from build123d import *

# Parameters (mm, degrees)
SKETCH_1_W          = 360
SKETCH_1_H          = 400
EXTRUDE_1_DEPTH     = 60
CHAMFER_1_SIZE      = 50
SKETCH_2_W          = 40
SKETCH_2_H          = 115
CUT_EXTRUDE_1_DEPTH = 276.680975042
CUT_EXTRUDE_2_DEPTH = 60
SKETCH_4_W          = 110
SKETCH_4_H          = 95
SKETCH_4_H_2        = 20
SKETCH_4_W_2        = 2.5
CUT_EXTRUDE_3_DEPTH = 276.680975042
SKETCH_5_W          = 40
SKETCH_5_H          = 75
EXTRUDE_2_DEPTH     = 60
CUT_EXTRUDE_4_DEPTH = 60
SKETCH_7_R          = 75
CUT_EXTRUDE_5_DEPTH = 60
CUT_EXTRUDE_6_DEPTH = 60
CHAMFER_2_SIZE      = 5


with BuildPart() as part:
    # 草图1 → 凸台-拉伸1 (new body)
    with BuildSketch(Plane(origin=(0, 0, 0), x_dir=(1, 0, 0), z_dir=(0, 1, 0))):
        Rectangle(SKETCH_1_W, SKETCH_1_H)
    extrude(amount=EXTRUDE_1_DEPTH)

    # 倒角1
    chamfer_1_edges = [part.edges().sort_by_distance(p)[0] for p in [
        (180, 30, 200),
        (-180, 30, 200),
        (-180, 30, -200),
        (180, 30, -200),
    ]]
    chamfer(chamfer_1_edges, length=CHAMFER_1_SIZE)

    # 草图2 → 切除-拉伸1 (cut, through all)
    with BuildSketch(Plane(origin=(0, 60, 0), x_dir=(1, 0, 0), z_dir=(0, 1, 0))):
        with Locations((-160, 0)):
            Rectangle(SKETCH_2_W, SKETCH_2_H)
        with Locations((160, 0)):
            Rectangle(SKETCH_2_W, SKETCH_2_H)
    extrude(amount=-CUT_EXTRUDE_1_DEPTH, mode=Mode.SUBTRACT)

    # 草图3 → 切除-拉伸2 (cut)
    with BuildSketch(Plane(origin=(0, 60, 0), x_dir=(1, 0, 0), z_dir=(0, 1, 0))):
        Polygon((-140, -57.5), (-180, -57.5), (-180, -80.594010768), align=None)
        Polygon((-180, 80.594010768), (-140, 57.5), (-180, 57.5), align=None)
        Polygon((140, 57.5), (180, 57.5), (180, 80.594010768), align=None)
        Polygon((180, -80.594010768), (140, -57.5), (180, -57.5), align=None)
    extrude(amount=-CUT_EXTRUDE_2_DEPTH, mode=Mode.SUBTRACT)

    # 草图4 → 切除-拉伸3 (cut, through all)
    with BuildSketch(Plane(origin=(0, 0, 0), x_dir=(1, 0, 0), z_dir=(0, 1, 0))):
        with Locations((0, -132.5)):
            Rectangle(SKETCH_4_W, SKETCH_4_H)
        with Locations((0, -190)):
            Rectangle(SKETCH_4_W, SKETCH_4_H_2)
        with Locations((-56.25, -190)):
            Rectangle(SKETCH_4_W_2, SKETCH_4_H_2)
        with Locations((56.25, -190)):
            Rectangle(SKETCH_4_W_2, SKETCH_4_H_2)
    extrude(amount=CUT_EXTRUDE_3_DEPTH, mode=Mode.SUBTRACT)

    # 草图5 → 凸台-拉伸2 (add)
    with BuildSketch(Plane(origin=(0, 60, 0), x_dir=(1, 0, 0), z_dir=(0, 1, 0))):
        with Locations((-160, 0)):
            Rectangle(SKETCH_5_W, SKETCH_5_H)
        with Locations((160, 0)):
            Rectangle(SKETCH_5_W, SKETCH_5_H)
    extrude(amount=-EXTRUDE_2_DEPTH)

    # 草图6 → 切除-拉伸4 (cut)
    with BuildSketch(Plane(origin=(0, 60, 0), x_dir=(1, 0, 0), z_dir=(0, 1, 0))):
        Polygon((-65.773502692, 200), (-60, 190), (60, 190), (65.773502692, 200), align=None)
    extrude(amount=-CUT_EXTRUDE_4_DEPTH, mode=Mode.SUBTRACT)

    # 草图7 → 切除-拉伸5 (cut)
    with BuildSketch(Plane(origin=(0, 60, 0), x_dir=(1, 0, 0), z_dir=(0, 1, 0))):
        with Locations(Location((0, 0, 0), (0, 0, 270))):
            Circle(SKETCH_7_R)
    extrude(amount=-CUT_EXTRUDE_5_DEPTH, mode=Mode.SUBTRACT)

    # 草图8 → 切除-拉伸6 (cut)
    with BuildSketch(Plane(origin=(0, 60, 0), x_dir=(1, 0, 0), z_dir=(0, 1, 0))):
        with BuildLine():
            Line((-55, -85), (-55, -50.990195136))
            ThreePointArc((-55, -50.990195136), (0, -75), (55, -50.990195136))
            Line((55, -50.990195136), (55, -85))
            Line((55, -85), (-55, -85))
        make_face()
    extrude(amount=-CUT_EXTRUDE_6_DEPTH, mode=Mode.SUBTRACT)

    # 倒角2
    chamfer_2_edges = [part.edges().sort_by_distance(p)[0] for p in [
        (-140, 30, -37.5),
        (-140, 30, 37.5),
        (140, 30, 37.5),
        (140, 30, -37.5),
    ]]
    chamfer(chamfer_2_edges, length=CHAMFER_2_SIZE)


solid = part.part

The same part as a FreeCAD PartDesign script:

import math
import FreeCAD as App
import Part
import Sketcher
from FreeCAD import Vector
Q = App.Units.Quantity


def edges_at(feature, points):
    """Names of the edges that pass closest to the given points."""
    edges = feature.Shape.Edges
    near = lambda p: min(range(len(edges)), key=lambda i: edges[i].distToShape(Part.Vertex(*p))[0])
    return sorted({f"Edge{near(p) + 1}" for p in points})

doc = App.newDocument("Part")
params = doc.addObject("Spreadsheet::Sheet", "Params")
for row, (alias, value) in enumerate([
    ("sketch1_width", "360 mm"),
    ("sketch1_height", "400 mm"),
    ("pad1_length", "60 mm"),
    ("chamfer_size", "50 mm"),
    ("sketch2_width", "40 mm"),
    ("sketch2_height", "115 mm"),
    ("sketch3_width", "40 mm"),
    ("pocket2_length", "60 mm"),
    ("sketch4_width", "115 mm"),
    ("sketch4_width2", "110 mm"),
    ("sketch4_height", "95 mm"),
    ("sketch4_height2", "20 mm"),
    ("sketch5_width", "40 mm"),
    ("sketch5_height", "75 mm"),
    ("pad2_length", "60 mm"),
    ("sketch6_width", "120 mm"),
    ("pocket4_length", "60 mm"),
    ("sketch7_diameter", "150 mm"),
    ("pocket5_length", "60 mm"),
    ("sketch8_radius", "75 mm"),
    ("sketch8_width", "110 mm"),
    ("pocket6_length", "60 mm"),
    ("chamfer2_size", "5 mm"),
], start=1):
    params.set(f"A{row}", alias)
    params.set(f"B{row}", "=" + value)
    params.setAlias(f"B{row}", alias)

body = doc.addObject("PartDesign::Body", "Body")

# Sketch on XZ plane
sketch1 = body.newObject("Sketcher::SketchObject", "Sketch")
sketch1.AttachmentSupport = (doc.getObject("XZ_Plane"), [""])
sketch1.MapMode = "FlatFace"
sketch1.addGeometry(Part.LineSegment(Vector(-180, -200, 0), Vector(-180, 200, 0)), False)
sketch1.addGeometry(Part.LineSegment(Vector(-180, 200, 0), Vector(180, 200, 0)), False)
sketch1.addGeometry(Part.LineSegment(Vector(180, 200, 0), Vector(180, -200, 0)), False)
sketch1.addGeometry(Part.LineSegment(Vector(180, -200, 0), Vector(-180, -200, 0)), False)
sketch1.addConstraint(Sketcher.Constraint("Coincident", 0, 2, 1, 1))
sketch1.addConstraint(Sketcher.Constraint("Coincident", 1, 2, 2, 1))
sketch1.addConstraint(Sketcher.Constraint("Coincident", 2, 2, 3, 1))
sketch1.addConstraint(Sketcher.Constraint("Coincident", 3, 2, 0, 1))
sketch1.addConstraint(Sketcher.Constraint("Vertical", 0))
sketch1.addConstraint(Sketcher.Constraint("Horizontal", 1))
sketch1.addConstraint(Sketcher.Constraint("Vertical", 2))
sketch1.addConstraint(Sketcher.Constraint("Horizontal", 3))
sketch1.addConstraint(Sketcher.Constraint("Symmetric", 0, 2, 2, 2, -1, 1))
sketch1.addConstraint(Sketcher.Constraint("DistanceX", 1, 1, 1, 2, 360.0))
sketch1.addConstraint(Sketcher.Constraint("DistanceY", 0, 1, 0, 2, 400.0))
sketch1.setExpression("Constraints[9]", "Params.sketch1_width")
sketch1.setExpression("Constraints[10]", "Params.sketch1_height")
pad1 = body.newObject("PartDesign::Pad", "Pad")
pad1.Profile = sketch1
pad1.setExpression("Length", "Params.pad1_length")
pad1.Reversed = True
doc.recompute()

chamfer = body.newObject("PartDesign::Chamfer", "Chamfer")
chamfer.Base = (pad1, edges_at(pad1, [
    (180, 30, 200),
    (-180, 30, 200),
    (-180, 30, -200),
    (180, 30, -200),
]))
chamfer.setExpression("Size", "Params.chamfer_size")

# Sketch on XZ plane
sketch2 = body.newObject("Sketcher::SketchObject", "Sketch001")
sketch2.AttachmentSupport = (doc.getObject("XZ_Plane"), [""])
sketch2.MapMode = "FlatFace"
sketch2.AttachmentOffset = App.Placement(Vector(0, 0, -60), App.Rotation())
sketch2.addGeometry(Part.LineSegment(Vector(-180, -58, 0), Vector(-180, 58, 0)), False)
sketch2.addGeometry(Part.LineSegment(Vector(-180, 58, 0), Vector(-140, 58, 0)), False)
sketch2.addGeometry(Part.LineSegment(Vector(-140, 58, 0), Vector(-140, -58, 0)), False)
sketch2.addGeometry(Part.LineSegment(Vector(-140, -58, 0), Vector(-180, -58, 0)), False)
sketch2.addGeometry(Part.LineSegment(Vector(140, -58, 0), Vector(140, 58, 0)), False)
sketch2.addGeometry(Part.LineSegment(Vector(140, 58, 0), Vector(180, 58, 0)), False)
sketch2.addGeometry(Part.LineSegment(Vector(180, 58, 0), Vector(180, -58, 0)), False)
sketch2.addGeometry(Part.LineSegment(Vector(180, -58, 0), Vector(140, -58, 0)), False)
sketch2.addConstraint(Sketcher.Constraint("Coincident", 0, 2, 1, 1))
sketch2.addConstraint(Sketcher.Constraint("Coincident", 1, 2, 2, 1))
sketch2.addConstraint(Sketcher.Constraint("Coincident", 2, 2, 3, 1))
sketch2.addConstraint(Sketcher.Constraint("Coincident", 3, 2, 0, 1))
sketch2.addConstraint(Sketcher.Constraint("Coincident", 4, 2, 5, 1))
sketch2.addConstraint(Sketcher.Constraint("Coincident", 5, 2, 6, 1))
sketch2.addConstraint(Sketcher.Constraint("Coincident", 6, 2, 7, 1))
sketch2.addConstraint(Sketcher.Constraint("Coincident", 7, 2, 4, 1))
sketch2.addConstraint(Sketcher.Constraint("Vertical", 0))
sketch2.addConstraint(Sketcher.Constraint("Horizontal", 1))
sketch2.addConstraint(Sketcher.Constraint("Vertical", 2))
sketch2.addConstraint(Sketcher.Constraint("Horizontal", 3))
sketch2.addConstraint(Sketcher.Constraint("Vertical", 4))
sketch2.addConstraint(Sketcher.Constraint("Horizontal", 5))
sketch2.addConstraint(Sketcher.Constraint("Vertical", 6))
sketch2.addConstraint(Sketcher.Constraint("Horizontal", 7))
sketch2.addConstraint(Sketcher.Constraint("Symmetric", 2, 2, 4, 2, -1, 1))
sketch2.addConstraint(Sketcher.Constraint("Symmetric", 0, 2, 6, 2, -1, 1))
sketch2.addConstraint(Sketcher.Constraint("Horizontal", 1, 2, 4, 2))
sketch2.addConstraint(Sketcher.Constraint("DistanceX", 1, 1, 1, 2, 40.0))
sketch2.addConstraint(Sketcher.Constraint("DistanceY", 0, 1, 0, 2, 115.0))
sketch2.addConstraint(Sketcher.Constraint("DistanceX", 0, 2, -1, 1, 180.0))
sketch2.setExpression("Constraints[19]", "Params.sketch2_width")
sketch2.setExpression("Constraints[20]", "Params.sketch2_height")
pocket1 = body.newObject("PartDesign::Pocket", "Pocket")
pocket1.Profile = sketch2
pocket1.Type = "ThroughAll"
pocket1.Reversed = True

# Sketch on XZ plane
sketch3 = body.newObject("Sketcher::SketchObject", "Sketch002")
sketch3.AttachmentSupport = (doc.getObject("XZ_Plane"), [""])
sketch3.MapMode = "FlatFace"
sketch3.AttachmentOffset = App.Placement(Vector(0, 0, -60), App.Rotation())
sketch3.addGeometry(Part.LineSegment(Vector(-140, 58, 0), Vector(-180, 58, 0)), False)
sketch3.addGeometry(Part.LineSegment(Vector(-180, 58, 0), Vector(-180, 81, 0)), False)
sketch3.addGeometry(Part.LineSegment(Vector(-180, 81, 0), Vector(-140, 58, 0)), False)
sketch3.addGeometry(Part.LineSegment(Vector(-140, -58, 0), Vector(-180, -81, 0)), False)
sketch3.addGeometry(Part.LineSegment(Vector(-180, -81, 0), Vector(-180, -58, 0)), False)
sketch3.addGeometry(Part.LineSegment(Vector(-180, -58, 0), Vector(-140, -58, 0)), False)
sketch3.addGeometry(Part.LineSegment(Vector(140, -58, 0), Vector(180, -58, 0)), False)
sketch3.addGeometry(Part.LineSegment(Vector(180, -58, 0), Vector(180, -81, 0)), False)
sketch3.addGeometry(Part.LineSegment(Vector(180, -81, 0), Vector(140, -58, 0)), False)
sketch3.addGeometry(Part.LineSegment(Vector(140, 58, 0), Vector(180, 81, 0)), False)
sketch3.addGeometry(Part.LineSegment(Vector(180, 81, 0), Vector(180, 58, 0)), False)
sketch3.addGeometry(Part.LineSegment(Vector(180, 58, 0), Vector(140, 58, 0)), False)
sketch3.addConstraint(Sketcher.Constraint("Coincident", 0, 2, 1, 1))
sketch3.addConstraint(Sketcher.Constraint("Coincident", 1, 2, 2, 1))
sketch3.addConstraint(Sketcher.Constraint("Coincident", 2, 2, 0, 1))
sketch3.addConstraint(Sketcher.Constraint("Coincident", 3, 2, 4, 1))
sketch3.addConstraint(Sketcher.Constraint("Coincident", 4, 2, 5, 1))
sketch3.addConstraint(Sketcher.Constraint("Coincident", 5, 2, 3, 1))
sketch3.addConstraint(Sketcher.Constraint("Coincident", 6, 2, 7, 1))
sketch3.addConstraint(Sketcher.Constraint("Coincident", 7, 2, 8, 1))
sketch3.addConstraint(Sketcher.Constraint("Coincident", 8, 2, 6, 1))
sketch3.addConstraint(Sketcher.Constraint("Coincident", 9, 2, 10, 1))
sketch3.addConstraint(Sketcher.Constraint("Coincident", 10, 2, 11, 1))
sketch3.addConstraint(Sketcher.Constraint("Coincident", 11, 2, 9, 1))
sketch3.addConstraint(Sketcher.Constraint("Horizontal", 0))
sketch3.addConstraint(Sketcher.Constraint("Vertical", 1))
sketch3.addConstraint(Sketcher.Constraint("Vertical", 4))
sketch3.addConstraint(Sketcher.Constraint("Horizontal", 5))
sketch3.addConstraint(Sketcher.Constraint("Horizontal", 6))
sketch3.addConstraint(Sketcher.Constraint("Vertical", 7))
sketch3.addConstraint(Sketcher.Constraint("Vertical", 10))
sketch3.addConstraint(Sketcher.Constraint("Horizontal", 11))
sketch3.addConstraint(Sketcher.Constraint("Symmetric", 0, 2, 6, 2, -1, 1))
sketch3.addConstraint(Sketcher.Constraint("Symmetric", 3, 2, 9, 2, -1, 1))
sketch3.addConstraint(Sketcher.Constraint("Symmetric", 5, 2, 11, 2, -1, 1))
sketch3.addConstraint(Sketcher.Constraint("Symmetric", 4, 2, 6, 2, -2))
sketch3.addConstraint(Sketcher.Constraint("Parallel", 2, 8))
sketch3.addConstraint(Sketcher.Constraint("Horizontal", 3, 2, 7, 2))
sketch3.addConstraint(Sketcher.Constraint("Horizontal", 1, 2, 9, 2))
sketch3.addConstraint(Sketcher.Constraint("Vertical", 2, 2, 5, 2))
sketch3.addConstraint(Sketcher.Constraint("DistanceX", 0, 2, 0, 1, 40.0))
sketch3.addConstraint(Sketcher.Constraint("Angle", 2, Q("-30 deg")))
sketch3.addConstraint(Sketcher.Constraint("DistanceX", 0, 2, -1, 1, 180.0))
sketch3.addConstraint(Sketcher.Constraint("DistanceY", 4, 2, 0, 2, 115.0))
sketch3.setExpression("Constraints[28]", "Params.sketch3_width")
pocket2 = body.newObject("PartDesign::Pocket", "Pocket001")
pocket2.Profile = sketch3
pocket2.setExpression("Length", "Params.pocket2_length")
pocket2.Reversed = True

# Sketch on XZ plane
sketch4 = body.newObject("Sketcher::SketchObject", "Sketch003")
sketch4.AttachmentSupport = (doc.getObject("XZ_Plane"), [""])
sketch4.MapMode = "FlatFace"
sketch4.addGeometry(Part.LineSegment(Vector(-55, 85, 0), Vector(-55, 180, 0)), False)
sketch4.addGeometry(Part.LineSegment(Vector(-55, 180, 0), Vector(-57.5, 180, 0)), False)
sketch4.addGeometry(Part.LineSegment(Vector(-57.5, 180, 0), Vector(-57.5, 200, 0)), False)
sketch4.addGeometry(Part.LineSegment(Vector(-57.5, 200, 0), Vector(57.5, 200, 0)), False)
sketch4.addGeometry(Part.LineSegment(Vector(57.5, 200, 0), Vector(57.5, 180, 0)), False)
sketch4.addGeometry(Part.LineSegment(Vector(57.5, 180, 0), Vector(55, 180, 0)), False)
sketch4.addGeometry(Part.LineSegment(Vector(55, 180, 0), Vector(55, 85, 0)), False)
sketch4.addGeometry(Part.LineSegment(Vector(55, 85, 0), Vector(-55, 85, 0)), False)
sketch4.addConstraint(Sketcher.Constraint("Coincident", 0, 2, 1, 1))
sketch4.addConstraint(Sketcher.Constraint("Coincident", 1, 2, 2, 1))
sketch4.addConstraint(Sketcher.Constraint("Coincident", 2, 2, 3, 1))
sketch4.addConstraint(Sketcher.Constraint("Coincident", 3, 2, 4, 1))
sketch4.addConstraint(Sketcher.Constraint("Coincident", 4, 2, 5, 1))
sketch4.addConstraint(Sketcher.Constraint("Coincident", 5, 2, 6, 1))
sketch4.addConstraint(Sketcher.Constraint("Coincident", 6, 2, 7, 1))
sketch4.addConstraint(Sketcher.Constraint("Coincident", 7, 2, 0, 1))
sketch4.addConstraint(Sketcher.Constraint("Vertical", 0))
sketch4.addConstraint(Sketcher.Constraint("Horizontal", 1))
sketch4.addConstraint(Sketcher.Constraint("Vertical", 2))
sketch4.addConstraint(Sketcher.Constraint("Horizontal", 3))
sketch4.addConstraint(Sketcher.Constraint("Vertical", 4))
sketch4.addConstraint(Sketcher.Constraint("Horizontal", 5))
sketch4.addConstraint(Sketcher.Constraint("Vertical", 6))
sketch4.addConstraint(Sketcher.Constraint("Horizontal", 7))
sketch4.addConstraint(Sketcher.Constraint("Symmetric", 1, 2, 4, 2, -2))
sketch4.addConstraint(Sketcher.Constraint("Equal", 1, 5))
sketch4.addConstraint(Sketcher.Constraint("DistanceX", 3, 1, 3, 2, 115.0))
sketch4.addConstraint(Sketcher.Constraint("DistanceX", 7, 2, 7, 1, 110.0))
sketch4.addConstraint(Sketcher.Constraint("DistanceY", 0, 1, 0, 2, 95.0))
sketch4.addConstraint(Sketcher.Constraint("DistanceY", 2, 1, 2, 2, 20.0))
sketch4.addConstraint(Sketcher.Constraint("DistanceY", -1, 1, 0, 2, 180.0))
sketch4.setExpression("Constraints[18]", "Params.sketch4_width")
sketch4.setExpression("Constraints[19]", "Params.sketch4_width2")
sketch4.setExpression("Constraints[20]", "Params.sketch4_height")
sketch4.setExpression("Constraints[21]", "Params.sketch4_height2")
pocket3 = body.newObject("PartDesign::Pocket", "Pocket002")
pocket3.Profile = sketch4
pocket3.Type = "ThroughAll"

# Sketch on XZ plane
sketch5 = body.newObject("Sketcher::SketchObject", "Sketch004")
sketch5.AttachmentSupport = (doc.getObject("XZ_Plane"), [""])
sketch5.MapMode = "FlatFace"
sketch5.AttachmentOffset = App.Placement(Vector(0, 0, -60), App.Rotation())
sketch5.addGeometry(Part.LineSegment(Vector(-180, -38, 0), Vector(-180, 38, 0)), False)
sketch5.addGeometry(Part.LineSegment(Vector(-180, 38, 0), Vector(-140, 38, 0)), False)
sketch5.addGeometry(Part.LineSegment(Vector(-140, 38, 0), Vector(-140, -38, 0)), False)
sketch5.addGeometry(Part.LineSegment(Vector(-140, -38, 0), Vector(-180, -38, 0)), False)
sketch5.addGeometry(Part.LineSegment(Vector(140, -38, 0), Vector(140, 38, 0)), False)
sketch5.addGeometry(Part.LineSegment(Vector(140, 38, 0), Vector(180, 38, 0)), False)
sketch5.addGeometry(Part.LineSegment(Vector(180, 38, 0), Vector(180, -38, 0)), False)
sketch5.addGeometry(Part.LineSegment(Vector(180, -38, 0), Vector(140, -38, 0)), False)
sketch5.addConstraint(Sketcher.Constraint("Coincident", 0, 2, 1, 1))
sketch5.addConstraint(Sketcher.Constraint("Coincident", 1, 2, 2, 1))
sketch5.addConstraint(Sketcher.Constraint("Coincident", 2, 2, 3, 1))
sketch5.addConstraint(Sketcher.Constraint("Coincident", 3, 2, 0, 1))
sketch5.addConstraint(Sketcher.Constraint("Coincident", 4, 2, 5, 1))
sketch5.addConstraint(Sketcher.Constraint("Coincident", 5, 2, 6, 1))
sketch5.addConstraint(Sketcher.Constraint("Coincident", 6, 2, 7, 1))
sketch5.addConstraint(Sketcher.Constraint("Coincident", 7, 2, 4, 1))
sketch5.addConstraint(Sketcher.Constraint("Vertical", 0))
sketch5.addConstraint(Sketcher.Constraint("Horizontal", 1))
sketch5.addConstraint(Sketcher.Constraint("Vertical", 2))
sketch5.addConstraint(Sketcher.Constraint("Horizontal", 3))
sketch5.addConstraint(Sketcher.Constraint("Vertical", 4))
sketch5.addConstraint(Sketcher.Constraint("Horizontal", 5))
sketch5.addConstraint(Sketcher.Constraint("Vertical", 6))
sketch5.addConstraint(Sketcher.Constraint("Horizontal", 7))
sketch5.addConstraint(Sketcher.Constraint("Symmetric", 2, 2, 4, 2, -1, 1))
sketch5.addConstraint(Sketcher.Constraint("Symmetric", 0, 2, 6, 2, -1, 1))
sketch5.addConstraint(Sketcher.Constraint("Horizontal", 1, 2, 4, 2))
sketch5.addConstraint(Sketcher.Constraint("DistanceX", 1, 1, 1, 2, 40.0))
sketch5.addConstraint(Sketcher.Constraint("DistanceY", 0, 1, 0, 2, 75.0))
sketch5.addConstraint(Sketcher.Constraint("DistanceX", 0, 2, -1, 1, 180.0))
sketch5.setExpression("Constraints[19]", "Params.sketch5_width")
sketch5.setExpression("Constraints[20]", "Params.sketch5_height")
pad2 = body.newObject("PartDesign::Pad", "Pad001")
pad2.Profile = sketch5
pad2.setExpression("Length", "Params.pad2_length")

# Sketch on XZ plane
sketch6 = body.newObject("Sketcher::SketchObject", "Sketch005")
sketch6.AttachmentSupport = (doc.getObject("XZ_Plane"), [""])
sketch6.MapMode = "FlatFace"
sketch6.AttachmentOffset = App.Placement(Vector(0, 0, -60), App.Rotation())
sketch6.addGeometry(Part.LineSegment(Vector(-66, -200, 0), Vector(-60, -190, 0)), False)
sketch6.addGeometry(Part.LineSegment(Vector(-60, -190, 0), Vector(60, -190, 0)), False)
sketch6.addGeometry(Part.LineSegment(Vector(60, -190, 0), Vector(66, -200, 0)), False)
sketch6.addGeometry(Part.LineSegment(Vector(66, -200, 0), Vector(-66, -200, 0)), False)
sketch6.addConstraint(Sketcher.Constraint("Coincident", 0, 2, 1, 1))
sketch6.addConstraint(Sketcher.Constraint("Coincident", 1, 2, 2, 1))
sketch6.addConstraint(Sketcher.Constraint("Coincident", 2, 2, 3, 1))
sketch6.addConstraint(Sketcher.Constraint("Coincident", 3, 2, 0, 1))
sketch6.addConstraint(Sketcher.Constraint("Horizontal", 1))
sketch6.addConstraint(Sketcher.Constraint("Horizontal", 3))
sketch6.addConstraint(Sketcher.Constraint("Equal", 0, 2))
sketch6.addConstraint(Sketcher.Constraint("DistanceX", 1, 1, 1, 2, 120.0))
sketch6.addConstraint(Sketcher.Constraint("Angle", 0, Q("60 deg")))
sketch6.addConstraint(Sketcher.Constraint("DistanceX", 0, 2, -1, 1, 60.0))
sketch6.addConstraint(Sketcher.Constraint("DistanceY", 0, 2, -1, 1, 190.0))
sketch6.addConstraint(Sketcher.Constraint("DistanceY", 2, 2, -1, 1, 200.0))
sketch6.setExpression("Constraints[7]", "Params.sketch6_width")
pocket4 = body.newObject("PartDesign::Pocket", "Pocket003")
pocket4.Profile = sketch6
pocket4.setExpression("Length", "Params.pocket4_length")
pocket4.Reversed = True

# Sketch on XZ plane
sketch7 = body.newObject("Sketcher::SketchObject", "Sketch006")
sketch7.AttachmentSupport = (doc.getObject("XZ_Plane"), [""])
sketch7.MapMode = "FlatFace"
sketch7.AttachmentOffset = App.Placement(Vector(0, 0, -60), App.Rotation())
sketch7.addGeometry(Part.Circle(Vector(0, 0, 0), Vector(0, 0, 1), 75), False)
sketch7.addConstraint(Sketcher.Constraint("Coincident", 0, 3, -1, 1))
sketch7.addConstraint(Sketcher.Constraint("Diameter", 0, 150.0))
sketch7.setExpression("Constraints[1]", "Params.sketch7_diameter")
pocket5 = body.newObject("PartDesign::Pocket", "Pocket004")
pocket5.Profile = sketch7
pocket5.setExpression("Length", "Params.pocket5_length")
pocket5.Reversed = True

# Sketch on XZ plane
sketch8 = body.newObject("Sketcher::SketchObject", "Sketch007")
sketch8.AttachmentSupport = (doc.getObject("XZ_Plane"), [""])
sketch8.MapMode = "FlatFace"
sketch8.AttachmentOffset = App.Placement(Vector(0, 0, -60), App.Rotation())
sketch8.addGeometry(Part.LineSegment(Vector(-55, 51, 0), Vector(-55, 85, 0)), False)
sketch8.addGeometry(Part.LineSegment(Vector(-55, 85, 0), Vector(55, 85, 0)), False)
sketch8.addGeometry(Part.LineSegment(Vector(55, 85, 0), Vector(55, 51, 0)), False)
sketch8.addGeometry(Part.ArcOfCircle(Part.Circle(Vector(0, 0, 0), Vector(0, 0, 1), 75), math.radians(43), math.radians(137)), False)
sketch8.addConstraint(Sketcher.Constraint("Coincident", 0, 2, 1, 1))
sketch8.addConstraint(Sketcher.Constraint("Coincident", 1, 2, 2, 1))
sketch8.addConstraint(Sketcher.Constraint("Coincident", 2, 2, 3, 1))
sketch8.addConstraint(Sketcher.Constraint("Coincident", 3, 2, 0, 1))
sketch8.addConstraint(Sketcher.Constraint("Vertical", 0))
sketch8.addConstraint(Sketcher.Constraint("Horizontal", 1))
sketch8.addConstraint(Sketcher.Constraint("Vertical", 2))
sketch8.addConstraint(Sketcher.Constraint("Coincident", 3, 3, -1, 1))
sketch8.addConstraint(Sketcher.Constraint("Horizontal", 2, 2, 3, 2))
sketch8.addConstraint(Sketcher.Constraint("Radius", 3, 75.0))
sketch8.addConstraint(Sketcher.Constraint("DistanceX", 1, 1, 1, 2, 110.0))
sketch8.addConstraint(Sketcher.Constraint("DistanceY", -1, 1, 0, 2, 85.0))
sketch8.setExpression("Constraints[9]", "Params.sketch8_radius")
sketch8.setExpression("Constraints[10]", "Params.sketch8_width")
pocket6 = body.newObject("PartDesign::Pocket", "Pocket005")
pocket6.Profile = sketch8
pocket6.setExpression("Length", "Params.pocket6_length")
pocket6.Reversed = True
doc.recompute()

chamfer2 = body.newObject("PartDesign::Chamfer", "Chamfer001")
chamfer2.Base = (pocket6, edges_at(pocket6, [
    (-140, 30, -37.5),
    (-140, 30, 37.5),
    (140, 30, 37.5),
    (140, 30, -37.5),
]))
chamfer2.setExpression("Size", "Params.chamfer2_size")

doc.recompute()
